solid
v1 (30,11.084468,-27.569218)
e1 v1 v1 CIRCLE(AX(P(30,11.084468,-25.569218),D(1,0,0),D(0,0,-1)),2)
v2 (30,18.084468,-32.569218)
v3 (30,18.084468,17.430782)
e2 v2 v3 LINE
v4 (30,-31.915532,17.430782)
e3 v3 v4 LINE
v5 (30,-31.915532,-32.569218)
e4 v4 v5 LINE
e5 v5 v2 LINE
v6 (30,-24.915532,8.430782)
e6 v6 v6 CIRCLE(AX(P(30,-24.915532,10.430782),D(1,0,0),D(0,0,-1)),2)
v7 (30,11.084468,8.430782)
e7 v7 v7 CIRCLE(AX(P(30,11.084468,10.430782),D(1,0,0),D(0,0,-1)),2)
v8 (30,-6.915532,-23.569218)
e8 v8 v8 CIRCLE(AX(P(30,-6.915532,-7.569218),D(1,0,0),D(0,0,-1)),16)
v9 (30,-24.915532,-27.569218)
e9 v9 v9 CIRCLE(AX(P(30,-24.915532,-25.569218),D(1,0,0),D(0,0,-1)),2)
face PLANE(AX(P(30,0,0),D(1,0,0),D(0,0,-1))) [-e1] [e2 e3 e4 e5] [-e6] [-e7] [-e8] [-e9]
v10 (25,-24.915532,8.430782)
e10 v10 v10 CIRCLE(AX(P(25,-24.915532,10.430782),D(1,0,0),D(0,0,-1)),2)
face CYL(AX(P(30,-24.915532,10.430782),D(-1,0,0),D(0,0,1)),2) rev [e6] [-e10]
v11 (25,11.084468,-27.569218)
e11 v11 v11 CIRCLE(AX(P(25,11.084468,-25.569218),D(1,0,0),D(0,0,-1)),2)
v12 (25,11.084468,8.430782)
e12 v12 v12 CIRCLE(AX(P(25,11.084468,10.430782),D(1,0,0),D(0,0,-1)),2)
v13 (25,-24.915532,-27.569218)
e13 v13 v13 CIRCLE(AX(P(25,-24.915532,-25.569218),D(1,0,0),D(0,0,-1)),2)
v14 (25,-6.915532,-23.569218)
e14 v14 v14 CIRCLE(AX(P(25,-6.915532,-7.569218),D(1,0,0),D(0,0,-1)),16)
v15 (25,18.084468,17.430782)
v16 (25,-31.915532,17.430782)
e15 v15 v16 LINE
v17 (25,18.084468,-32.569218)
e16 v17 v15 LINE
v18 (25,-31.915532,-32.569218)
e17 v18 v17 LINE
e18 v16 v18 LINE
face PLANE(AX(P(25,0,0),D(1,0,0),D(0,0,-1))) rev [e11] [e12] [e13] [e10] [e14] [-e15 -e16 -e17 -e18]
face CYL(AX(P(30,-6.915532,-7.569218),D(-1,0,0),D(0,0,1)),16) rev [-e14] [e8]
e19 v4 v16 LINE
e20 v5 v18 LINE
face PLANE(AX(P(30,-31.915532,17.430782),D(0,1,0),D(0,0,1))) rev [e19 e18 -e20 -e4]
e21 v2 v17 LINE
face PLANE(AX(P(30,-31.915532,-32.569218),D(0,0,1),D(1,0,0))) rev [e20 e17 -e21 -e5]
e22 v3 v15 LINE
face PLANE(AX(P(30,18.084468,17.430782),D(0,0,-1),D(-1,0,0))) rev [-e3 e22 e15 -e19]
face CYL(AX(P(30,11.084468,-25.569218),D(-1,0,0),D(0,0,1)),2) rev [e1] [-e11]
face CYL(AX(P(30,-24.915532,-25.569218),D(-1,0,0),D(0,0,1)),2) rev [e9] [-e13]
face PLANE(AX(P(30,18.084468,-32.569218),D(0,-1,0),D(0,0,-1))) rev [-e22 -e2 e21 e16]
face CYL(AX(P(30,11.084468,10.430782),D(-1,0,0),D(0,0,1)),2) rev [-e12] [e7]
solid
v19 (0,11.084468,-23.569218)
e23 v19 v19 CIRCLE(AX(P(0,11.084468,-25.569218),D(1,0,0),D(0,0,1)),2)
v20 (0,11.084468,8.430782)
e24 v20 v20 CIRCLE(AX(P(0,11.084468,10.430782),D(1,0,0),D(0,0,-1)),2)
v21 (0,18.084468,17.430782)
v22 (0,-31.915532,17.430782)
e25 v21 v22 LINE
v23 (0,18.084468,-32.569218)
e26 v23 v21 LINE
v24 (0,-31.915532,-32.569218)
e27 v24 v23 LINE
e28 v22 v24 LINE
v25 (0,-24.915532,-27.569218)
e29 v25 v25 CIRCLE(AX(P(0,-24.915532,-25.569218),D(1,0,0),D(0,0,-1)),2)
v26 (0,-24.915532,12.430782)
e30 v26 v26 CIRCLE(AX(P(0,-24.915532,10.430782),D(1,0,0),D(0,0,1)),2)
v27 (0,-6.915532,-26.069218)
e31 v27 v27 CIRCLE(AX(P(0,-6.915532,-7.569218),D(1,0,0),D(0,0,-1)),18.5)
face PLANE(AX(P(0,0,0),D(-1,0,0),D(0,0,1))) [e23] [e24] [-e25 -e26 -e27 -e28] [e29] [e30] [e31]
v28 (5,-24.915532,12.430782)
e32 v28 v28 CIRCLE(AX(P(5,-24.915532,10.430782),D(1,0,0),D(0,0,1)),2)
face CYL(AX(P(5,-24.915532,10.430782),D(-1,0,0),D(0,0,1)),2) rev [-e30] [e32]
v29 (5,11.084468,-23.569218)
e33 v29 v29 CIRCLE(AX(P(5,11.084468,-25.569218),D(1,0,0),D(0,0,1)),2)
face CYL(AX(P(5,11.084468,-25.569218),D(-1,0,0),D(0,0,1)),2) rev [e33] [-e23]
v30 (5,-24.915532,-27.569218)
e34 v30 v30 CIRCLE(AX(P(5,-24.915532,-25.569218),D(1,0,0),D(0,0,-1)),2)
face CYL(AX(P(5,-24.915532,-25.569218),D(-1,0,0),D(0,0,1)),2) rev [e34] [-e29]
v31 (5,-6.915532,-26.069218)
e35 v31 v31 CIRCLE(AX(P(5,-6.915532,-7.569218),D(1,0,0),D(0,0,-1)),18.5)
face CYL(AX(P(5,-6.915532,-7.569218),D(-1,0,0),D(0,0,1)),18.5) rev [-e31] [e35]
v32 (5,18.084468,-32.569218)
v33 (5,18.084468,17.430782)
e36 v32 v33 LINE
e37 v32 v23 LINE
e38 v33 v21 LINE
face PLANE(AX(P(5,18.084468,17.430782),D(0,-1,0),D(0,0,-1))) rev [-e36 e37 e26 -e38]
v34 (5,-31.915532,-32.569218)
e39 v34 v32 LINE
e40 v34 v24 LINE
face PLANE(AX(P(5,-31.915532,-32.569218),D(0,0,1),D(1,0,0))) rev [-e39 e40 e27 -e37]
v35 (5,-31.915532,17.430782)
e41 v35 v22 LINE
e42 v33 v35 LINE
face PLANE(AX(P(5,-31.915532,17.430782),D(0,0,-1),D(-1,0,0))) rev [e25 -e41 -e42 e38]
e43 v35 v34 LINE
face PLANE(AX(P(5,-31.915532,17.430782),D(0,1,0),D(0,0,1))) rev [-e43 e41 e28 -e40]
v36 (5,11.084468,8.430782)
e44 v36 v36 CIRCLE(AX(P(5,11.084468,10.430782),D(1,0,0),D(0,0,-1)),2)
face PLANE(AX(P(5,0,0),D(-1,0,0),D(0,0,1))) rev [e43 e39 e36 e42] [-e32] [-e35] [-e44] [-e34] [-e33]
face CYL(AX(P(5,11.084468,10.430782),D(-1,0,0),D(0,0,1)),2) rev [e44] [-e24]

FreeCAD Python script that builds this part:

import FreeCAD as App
import Part
import Sketcher

V = App.Vector

doc = App.newDocument("Part")
body = doc.addObject("PartDesign::Body", "Body")

sketch1 = doc.addObject("Sketcher::SketchObject", "Sketch")
body.addObject(sketch1)
sketch1.AttachmentSupport = (doc.YZ_Plane, [""])
sketch1.MapMode = "FlatFace"
sketch1.addGeometry(Part.LineSegment(V(18.084468, 17.430782, 0), V(-31.915532, 17.430782, 0)), False)
sketch1.addGeometry(Part.LineSegment(V(-31.915532, 17.430782, 0), V(-31.915532, -32.569218, 0)), False)
sketch1.addGeometry(Part.LineSegment(V(-31.915532, -32.569218, 0), V(18.084468, -32.569218, 0)), False)
sketch1.addGeometry(Part.LineSegment(V(18.084468, -32.569218, 0), V(18.084468, 17.430782, 0)), False)
sketch1.addGeometry(Part.Circle(V(-24.915532, 10.430782, 0), V(0, 0, 1), 2), False)
sketch1.addGeometry(Part.Circle(V(-24.915532, -25.569218, 0), V(0, 0, 1), 2), False)
sketch1.addGeometry(Part.Circle(V(11.084468, 10.430782, 0), V(0, 0, 1), 2), False)
sketch1.addGeometry(Part.Circle(V(-6.915532, -7.569218, 0), V(0, 0, 1), 18.5), False)
sketch1.addGeometry(Part.Circle(V(11.084468, -25.569218, 0), V(0, 0, 1), 2), False)
sketch1.addConstraint(Sketcher.Constraint("Coincident", 0, 2, 1, 1))
sketch1.addConstraint(Sketcher.Constraint("Coincident", 1, 2, 2, 1))
sketch1.addConstraint(Sketcher.Constraint("Coincident", 2, 2, 3, 1))
sketch1.addConstraint(Sketcher.Constraint("Coincident", 3, 2, 0, 1))
sketch1.addConstraint(Sketcher.Constraint("Horizontal", 0))
sketch1.addConstraint(Sketcher.Constraint("Vertical", 1))
sketch1.addConstraint(Sketcher.Constraint("Horizontal", 2))
sketch1.addConstraint(Sketcher.Constraint("Vertical", 3))
sketch1.addConstraint(Sketcher.Constraint("Equal", 4, 5))
sketch1.addConstraint(Sketcher.Constraint("Equal", 5, 6))
sketch1.addConstraint(Sketcher.Constraint("Equal", 6, 8))
sketch1.addConstraint(Sketcher.Constraint("Horizontal", 4, 3, 6, 3))
sketch1.addConstraint(Sketcher.Constraint("Horizontal", 5, 3, 8, 3))
sketch1.addConstraint(Sketcher.Constraint("Vertical", 4, 3, 5, 3))
sketch1.addConstraint(Sketcher.Constraint("Vertical", 6, 3, 8, 3))
sketch1.addConstraint(Sketcher.Constraint("Equal", 2, 1))
sketch1.addConstraint(Sketcher.Constraint("Diameter", 4, 4.0))
sketch1.addConstraint(Sketcher.Constraint("Diameter", 7, 37.0))
sketch1.addConstraint(Sketcher.Constraint("DistanceX", 0, 2, 0, 1, 50.0))
sketch1.addConstraint(Sketcher.Constraint("DistanceY", 5, 3, 4, 3, 36.0))
sketch1.addConstraint(Sketcher.Constraint("DistanceX", 4, 3, 6, 3, 36.0))
sketch1.addConstraint(Sketcher.Constraint("DistanceX", 4, 3, 7, 3, 18.0))
sketch1.addConstraint(Sketcher.Constraint("DistanceY", 7, 3, 4, 3, 18.0))
sketch1.addConstraint(Sketcher.Constraint("DistanceX", 0, 2, 4, 3, 7.0))
sketch1.addConstraint(Sketcher.Constraint("DistanceY", 4, 3, 0, 2, 7.0))
sketch1.addConstraint(Sketcher.Constraint("DistanceY", -1, 1, 4, 3, 10.430782))
sketch1.addConstraint(Sketcher.Constraint("DistanceX", 4, 3, -1, 1, 24.915532))
pad1 = doc.addObject("PartDesign::Pad", "Pad")
body.addObject(pad1)
pad1.Profile = sketch1
pad1.Length = 5
body2 = doc.addObject("PartDesign::Body", "Body001")

sketch2 = doc.addObject("Sketcher::SketchObject", "Sketch001")
body2.addObject(sketch2)
sketch2.AttachmentSupport = (doc.getObject("YZ_Plane001"), [""])
sketch2.MapMode = "FlatFace"
sketch2.AttachmentOffset = App.Placement(V(0, 0, 25), App.Rotation())
sketch2.addGeometry(Part.LineSegment(V(18.084468, 17.430782, 0), V(-31.915532, 17.430782, 0)), False)
sketch2.addGeometry(Part.LineSegment(V(-31.915532, 17.430782, 0), V(-31.915532, -32.569218, 0)), False)
sketch2.addGeometry(Part.LineSegment(V(-31.915532, -32.569218, 0), V(18.084468, -32.569218, 0)), False)
sketch2.addGeometry(Part.LineSegment(V(18.084468, -32.569218, 0), V(18.084468, 17.430782, 0)), False)
sketch2.addGeometry(Part.Circle(V(-24.915532, 10.430782, 0), V(0, 0, 1), 2), False)
sketch2.addGeometry(Part.Circle(V(-24.915532, -25.569218, 0), V(0, 0, 1), 2), False)
sketch2.addGeometry(Part.Circle(V(11.084468, 10.430782, 0), V(0, 0, 1), 2), False)
sketch2.addGeometry(Part.Circle(V(-6.915532, -7.569218, 0), V(0, 0, 1), 16), False)
sketch2.addGeometry(Part.Circle(V(11.084468, -25.569218, 0), V(0, 0, 1), 2), False)
sketch2.addConstraint(Sketcher.Constraint("Coincident", 0, 2, 1, 1))
sketch2.addConstraint(Sketcher.Constraint("Coincident", 1, 2, 2, 1))
sketch2.addConstraint(Sketcher.Constraint("Coincident", 2, 2, 3, 1))
sketch2.addConstraint(Sketcher.Constraint("Coincident", 3, 2, 0, 1))
sketch2.addConstraint(Sketcher.Constraint("Horizontal", 0))
sketch2.addConstraint(Sketcher.Constraint("Vertical", 1))
sketch2.addConstraint(Sketcher.Constraint("Horizontal", 2))
sketch2.addConstraint(Sketcher.Constraint("Vertical", 3))
sketch2.addConstraint(Sketcher.Constraint("Equal", 4, 5))
sketch2.addConstraint(Sketcher.Constraint("Equal", 5, 6))
sketch2.addConstraint(Sketcher.Constraint("Equal", 6, 8))
sketch2.addConstraint(Sketcher.Constraint("Horizontal", 4, 3, 6, 3))
sketch2.addConstraint(Sketcher.Constraint("Horizontal", 5, 3, 8, 3))
sketch2.addConstraint(Sketcher.Constraint("Vertical", 4, 3, 5, 3))
sketch2.addConstraint(Sketcher.Constraint("Vertical", 6, 3, 8, 3))
sketch2.addConstraint(Sketcher.Constraint("Equal", 2, 1))
sketch2.addConstraint(Sketcher.Constraint("Diameter", 4, 4.0))
sketch2.addConstraint(Sketcher.Constraint("Diameter", 7, 32.0))
sketch2.addConstraint(Sketcher.Constraint("DistanceX", 0, 2, 0, 1, 50.0))
sketch2.addConstraint(Sketcher.Constraint("DistanceY", 5, 3, 4, 3, 36.0))
sketch2.addConstraint(Sketcher.Constraint("DistanceX", 4, 3, 6, 3, 36.0))
sketch2.addConstraint(Sketcher.Constraint("DistanceX", 4, 3, 7, 3, 18.0))
sketch2.addConstraint(Sketcher.Constraint("DistanceY", 7, 3, 4, 3, 18.0))
sketch2.addConstraint(Sketcher.Constraint("DistanceX", 0, 2, 4, 3, 7.0))
sketch2.addConstraint(Sketcher.Constraint("DistanceY", 4, 3, 0, 2, 7.0))
sketch2.addConstraint(Sketcher.Constraint("DistanceY", -1, 1, 4, 3, 10.430782))
sketch2.addConstraint(Sketcher.Constraint("DistanceX", 4, 3, -1, 1, 24.915532))
pad2 = doc.addObject("PartDesign::Pad", "Pad001")
body2.addObject(pad2)
pad2.Profile = sketch2
pad2.Length = 5

doc.recompute()
